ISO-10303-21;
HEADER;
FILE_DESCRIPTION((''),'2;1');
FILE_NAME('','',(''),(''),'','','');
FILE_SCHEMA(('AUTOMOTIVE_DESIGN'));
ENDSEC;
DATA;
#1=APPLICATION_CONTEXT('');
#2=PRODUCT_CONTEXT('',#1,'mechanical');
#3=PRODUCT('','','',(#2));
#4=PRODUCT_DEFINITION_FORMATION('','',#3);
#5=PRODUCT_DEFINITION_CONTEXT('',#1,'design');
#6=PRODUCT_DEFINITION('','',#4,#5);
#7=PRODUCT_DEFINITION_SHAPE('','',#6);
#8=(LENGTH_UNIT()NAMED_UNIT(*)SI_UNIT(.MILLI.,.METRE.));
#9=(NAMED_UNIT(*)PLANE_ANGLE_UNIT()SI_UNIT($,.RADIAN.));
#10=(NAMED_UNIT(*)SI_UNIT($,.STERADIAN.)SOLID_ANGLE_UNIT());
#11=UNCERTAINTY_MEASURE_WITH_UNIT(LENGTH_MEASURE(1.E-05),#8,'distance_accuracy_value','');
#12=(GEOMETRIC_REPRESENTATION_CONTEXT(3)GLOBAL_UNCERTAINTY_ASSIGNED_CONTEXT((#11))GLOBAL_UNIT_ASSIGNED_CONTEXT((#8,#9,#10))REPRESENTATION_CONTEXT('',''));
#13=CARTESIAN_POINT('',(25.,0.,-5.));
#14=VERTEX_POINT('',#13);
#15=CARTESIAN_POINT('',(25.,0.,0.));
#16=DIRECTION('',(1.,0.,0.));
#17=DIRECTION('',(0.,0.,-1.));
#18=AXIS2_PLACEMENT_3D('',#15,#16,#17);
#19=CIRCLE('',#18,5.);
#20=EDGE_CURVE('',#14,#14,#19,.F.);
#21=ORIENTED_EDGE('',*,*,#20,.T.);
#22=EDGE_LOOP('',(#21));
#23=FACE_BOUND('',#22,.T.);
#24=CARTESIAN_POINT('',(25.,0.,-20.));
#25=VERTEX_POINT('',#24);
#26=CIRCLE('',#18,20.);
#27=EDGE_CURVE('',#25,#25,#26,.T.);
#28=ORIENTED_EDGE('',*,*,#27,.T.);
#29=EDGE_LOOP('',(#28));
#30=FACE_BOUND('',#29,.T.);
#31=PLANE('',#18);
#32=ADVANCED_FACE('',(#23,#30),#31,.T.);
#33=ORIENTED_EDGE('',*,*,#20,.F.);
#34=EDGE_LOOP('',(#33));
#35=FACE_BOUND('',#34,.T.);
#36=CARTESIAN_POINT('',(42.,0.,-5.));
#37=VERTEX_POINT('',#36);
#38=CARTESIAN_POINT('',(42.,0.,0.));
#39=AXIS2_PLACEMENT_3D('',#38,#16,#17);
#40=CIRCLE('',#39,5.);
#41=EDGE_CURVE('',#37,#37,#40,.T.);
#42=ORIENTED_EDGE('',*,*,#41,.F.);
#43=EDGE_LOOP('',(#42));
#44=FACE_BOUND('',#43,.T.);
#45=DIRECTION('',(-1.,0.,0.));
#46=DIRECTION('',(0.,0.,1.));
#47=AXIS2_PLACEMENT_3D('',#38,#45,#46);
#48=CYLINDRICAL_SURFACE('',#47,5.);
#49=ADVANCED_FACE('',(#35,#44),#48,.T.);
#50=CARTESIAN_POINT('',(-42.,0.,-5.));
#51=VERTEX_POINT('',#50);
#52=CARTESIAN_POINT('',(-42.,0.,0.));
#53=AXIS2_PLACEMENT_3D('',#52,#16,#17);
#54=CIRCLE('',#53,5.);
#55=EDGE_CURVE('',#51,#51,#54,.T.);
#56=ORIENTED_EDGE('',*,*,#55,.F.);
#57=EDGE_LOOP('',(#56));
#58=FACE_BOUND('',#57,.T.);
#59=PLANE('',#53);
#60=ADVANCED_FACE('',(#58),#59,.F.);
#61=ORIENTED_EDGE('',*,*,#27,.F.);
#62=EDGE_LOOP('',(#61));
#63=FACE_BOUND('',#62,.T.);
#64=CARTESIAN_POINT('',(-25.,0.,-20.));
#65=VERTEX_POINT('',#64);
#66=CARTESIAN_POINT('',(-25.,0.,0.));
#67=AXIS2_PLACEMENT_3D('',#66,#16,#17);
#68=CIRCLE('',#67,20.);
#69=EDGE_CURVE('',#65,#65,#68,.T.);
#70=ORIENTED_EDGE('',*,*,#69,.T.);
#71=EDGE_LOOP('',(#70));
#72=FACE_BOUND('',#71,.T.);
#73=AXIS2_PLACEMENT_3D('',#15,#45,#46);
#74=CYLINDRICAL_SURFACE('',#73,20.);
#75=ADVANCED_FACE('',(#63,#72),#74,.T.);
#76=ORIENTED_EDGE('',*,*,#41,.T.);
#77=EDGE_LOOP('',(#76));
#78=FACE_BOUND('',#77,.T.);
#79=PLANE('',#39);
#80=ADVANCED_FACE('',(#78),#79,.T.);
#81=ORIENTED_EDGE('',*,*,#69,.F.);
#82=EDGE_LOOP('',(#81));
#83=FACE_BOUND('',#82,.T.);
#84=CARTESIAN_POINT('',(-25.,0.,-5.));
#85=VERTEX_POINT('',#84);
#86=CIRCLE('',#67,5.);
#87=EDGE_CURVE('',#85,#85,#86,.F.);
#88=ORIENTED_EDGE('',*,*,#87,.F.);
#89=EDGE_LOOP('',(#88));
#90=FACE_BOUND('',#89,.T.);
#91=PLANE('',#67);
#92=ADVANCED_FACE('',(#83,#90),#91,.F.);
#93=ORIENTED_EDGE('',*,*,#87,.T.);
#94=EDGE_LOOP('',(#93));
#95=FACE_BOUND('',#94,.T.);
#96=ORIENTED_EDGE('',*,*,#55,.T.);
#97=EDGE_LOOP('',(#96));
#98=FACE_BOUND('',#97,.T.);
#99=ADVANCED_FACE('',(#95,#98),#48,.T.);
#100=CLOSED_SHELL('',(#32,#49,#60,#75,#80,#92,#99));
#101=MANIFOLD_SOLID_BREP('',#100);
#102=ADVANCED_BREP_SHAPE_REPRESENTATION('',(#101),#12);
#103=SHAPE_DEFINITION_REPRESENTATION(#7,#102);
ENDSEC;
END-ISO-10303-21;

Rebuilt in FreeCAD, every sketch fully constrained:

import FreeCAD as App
import Part
import Sketcher

V = App.Vector

doc = App.newDocument("Part")
body = doc.addObject("PartDesign::Body", "Body")

# Sketch on YZ plane
sketch1 = body.newObject("Sketcher::SketchObject", "Sketch")
sketch1.AttachmentSupport = (doc.getObject("YZ_Plane"), [""])
sketch1.MapMode = "FlatFace"
sketch1.addGeometry(Part.Circle(V(0, 0, 0), V(0, 0, 1), 20), False)
sketch1.addConstraint([
    Sketcher.Constraint("Coincident", 0, 3, -1, 1),
    Sketcher.Constraint("Diameter", 0, 40.0),
])
pad1 = body.newObject("PartDesign::Pad", "Pad")
pad1.Profile = sketch1
pad1.Length = 50
pad1.Midplane = True

# Sketch on YZ plane
sketch2 = body.newObject("Sketcher::SketchObject", "Sketch001")
sketch2.AttachmentSupport = (doc.getObject("YZ_Plane"), [""])
sketch2.MapMode = "FlatFace"
sketch2.addGeometry(Part.Circle(V(0, 0, 0), V(0, 0, 1), 5), False)
sketch2.addConstraint([
    Sketcher.Constraint("Coincident", 0, 3, -1, 1),
    Sketcher.Constraint("Diameter", 0, 10.0),
])
pad2 = body.newObject("PartDesign::Pad", "Pad001")
pad2.Profile = sketch2
pad2.Length = 84
pad2.Midplane = True

doc.recompute()
